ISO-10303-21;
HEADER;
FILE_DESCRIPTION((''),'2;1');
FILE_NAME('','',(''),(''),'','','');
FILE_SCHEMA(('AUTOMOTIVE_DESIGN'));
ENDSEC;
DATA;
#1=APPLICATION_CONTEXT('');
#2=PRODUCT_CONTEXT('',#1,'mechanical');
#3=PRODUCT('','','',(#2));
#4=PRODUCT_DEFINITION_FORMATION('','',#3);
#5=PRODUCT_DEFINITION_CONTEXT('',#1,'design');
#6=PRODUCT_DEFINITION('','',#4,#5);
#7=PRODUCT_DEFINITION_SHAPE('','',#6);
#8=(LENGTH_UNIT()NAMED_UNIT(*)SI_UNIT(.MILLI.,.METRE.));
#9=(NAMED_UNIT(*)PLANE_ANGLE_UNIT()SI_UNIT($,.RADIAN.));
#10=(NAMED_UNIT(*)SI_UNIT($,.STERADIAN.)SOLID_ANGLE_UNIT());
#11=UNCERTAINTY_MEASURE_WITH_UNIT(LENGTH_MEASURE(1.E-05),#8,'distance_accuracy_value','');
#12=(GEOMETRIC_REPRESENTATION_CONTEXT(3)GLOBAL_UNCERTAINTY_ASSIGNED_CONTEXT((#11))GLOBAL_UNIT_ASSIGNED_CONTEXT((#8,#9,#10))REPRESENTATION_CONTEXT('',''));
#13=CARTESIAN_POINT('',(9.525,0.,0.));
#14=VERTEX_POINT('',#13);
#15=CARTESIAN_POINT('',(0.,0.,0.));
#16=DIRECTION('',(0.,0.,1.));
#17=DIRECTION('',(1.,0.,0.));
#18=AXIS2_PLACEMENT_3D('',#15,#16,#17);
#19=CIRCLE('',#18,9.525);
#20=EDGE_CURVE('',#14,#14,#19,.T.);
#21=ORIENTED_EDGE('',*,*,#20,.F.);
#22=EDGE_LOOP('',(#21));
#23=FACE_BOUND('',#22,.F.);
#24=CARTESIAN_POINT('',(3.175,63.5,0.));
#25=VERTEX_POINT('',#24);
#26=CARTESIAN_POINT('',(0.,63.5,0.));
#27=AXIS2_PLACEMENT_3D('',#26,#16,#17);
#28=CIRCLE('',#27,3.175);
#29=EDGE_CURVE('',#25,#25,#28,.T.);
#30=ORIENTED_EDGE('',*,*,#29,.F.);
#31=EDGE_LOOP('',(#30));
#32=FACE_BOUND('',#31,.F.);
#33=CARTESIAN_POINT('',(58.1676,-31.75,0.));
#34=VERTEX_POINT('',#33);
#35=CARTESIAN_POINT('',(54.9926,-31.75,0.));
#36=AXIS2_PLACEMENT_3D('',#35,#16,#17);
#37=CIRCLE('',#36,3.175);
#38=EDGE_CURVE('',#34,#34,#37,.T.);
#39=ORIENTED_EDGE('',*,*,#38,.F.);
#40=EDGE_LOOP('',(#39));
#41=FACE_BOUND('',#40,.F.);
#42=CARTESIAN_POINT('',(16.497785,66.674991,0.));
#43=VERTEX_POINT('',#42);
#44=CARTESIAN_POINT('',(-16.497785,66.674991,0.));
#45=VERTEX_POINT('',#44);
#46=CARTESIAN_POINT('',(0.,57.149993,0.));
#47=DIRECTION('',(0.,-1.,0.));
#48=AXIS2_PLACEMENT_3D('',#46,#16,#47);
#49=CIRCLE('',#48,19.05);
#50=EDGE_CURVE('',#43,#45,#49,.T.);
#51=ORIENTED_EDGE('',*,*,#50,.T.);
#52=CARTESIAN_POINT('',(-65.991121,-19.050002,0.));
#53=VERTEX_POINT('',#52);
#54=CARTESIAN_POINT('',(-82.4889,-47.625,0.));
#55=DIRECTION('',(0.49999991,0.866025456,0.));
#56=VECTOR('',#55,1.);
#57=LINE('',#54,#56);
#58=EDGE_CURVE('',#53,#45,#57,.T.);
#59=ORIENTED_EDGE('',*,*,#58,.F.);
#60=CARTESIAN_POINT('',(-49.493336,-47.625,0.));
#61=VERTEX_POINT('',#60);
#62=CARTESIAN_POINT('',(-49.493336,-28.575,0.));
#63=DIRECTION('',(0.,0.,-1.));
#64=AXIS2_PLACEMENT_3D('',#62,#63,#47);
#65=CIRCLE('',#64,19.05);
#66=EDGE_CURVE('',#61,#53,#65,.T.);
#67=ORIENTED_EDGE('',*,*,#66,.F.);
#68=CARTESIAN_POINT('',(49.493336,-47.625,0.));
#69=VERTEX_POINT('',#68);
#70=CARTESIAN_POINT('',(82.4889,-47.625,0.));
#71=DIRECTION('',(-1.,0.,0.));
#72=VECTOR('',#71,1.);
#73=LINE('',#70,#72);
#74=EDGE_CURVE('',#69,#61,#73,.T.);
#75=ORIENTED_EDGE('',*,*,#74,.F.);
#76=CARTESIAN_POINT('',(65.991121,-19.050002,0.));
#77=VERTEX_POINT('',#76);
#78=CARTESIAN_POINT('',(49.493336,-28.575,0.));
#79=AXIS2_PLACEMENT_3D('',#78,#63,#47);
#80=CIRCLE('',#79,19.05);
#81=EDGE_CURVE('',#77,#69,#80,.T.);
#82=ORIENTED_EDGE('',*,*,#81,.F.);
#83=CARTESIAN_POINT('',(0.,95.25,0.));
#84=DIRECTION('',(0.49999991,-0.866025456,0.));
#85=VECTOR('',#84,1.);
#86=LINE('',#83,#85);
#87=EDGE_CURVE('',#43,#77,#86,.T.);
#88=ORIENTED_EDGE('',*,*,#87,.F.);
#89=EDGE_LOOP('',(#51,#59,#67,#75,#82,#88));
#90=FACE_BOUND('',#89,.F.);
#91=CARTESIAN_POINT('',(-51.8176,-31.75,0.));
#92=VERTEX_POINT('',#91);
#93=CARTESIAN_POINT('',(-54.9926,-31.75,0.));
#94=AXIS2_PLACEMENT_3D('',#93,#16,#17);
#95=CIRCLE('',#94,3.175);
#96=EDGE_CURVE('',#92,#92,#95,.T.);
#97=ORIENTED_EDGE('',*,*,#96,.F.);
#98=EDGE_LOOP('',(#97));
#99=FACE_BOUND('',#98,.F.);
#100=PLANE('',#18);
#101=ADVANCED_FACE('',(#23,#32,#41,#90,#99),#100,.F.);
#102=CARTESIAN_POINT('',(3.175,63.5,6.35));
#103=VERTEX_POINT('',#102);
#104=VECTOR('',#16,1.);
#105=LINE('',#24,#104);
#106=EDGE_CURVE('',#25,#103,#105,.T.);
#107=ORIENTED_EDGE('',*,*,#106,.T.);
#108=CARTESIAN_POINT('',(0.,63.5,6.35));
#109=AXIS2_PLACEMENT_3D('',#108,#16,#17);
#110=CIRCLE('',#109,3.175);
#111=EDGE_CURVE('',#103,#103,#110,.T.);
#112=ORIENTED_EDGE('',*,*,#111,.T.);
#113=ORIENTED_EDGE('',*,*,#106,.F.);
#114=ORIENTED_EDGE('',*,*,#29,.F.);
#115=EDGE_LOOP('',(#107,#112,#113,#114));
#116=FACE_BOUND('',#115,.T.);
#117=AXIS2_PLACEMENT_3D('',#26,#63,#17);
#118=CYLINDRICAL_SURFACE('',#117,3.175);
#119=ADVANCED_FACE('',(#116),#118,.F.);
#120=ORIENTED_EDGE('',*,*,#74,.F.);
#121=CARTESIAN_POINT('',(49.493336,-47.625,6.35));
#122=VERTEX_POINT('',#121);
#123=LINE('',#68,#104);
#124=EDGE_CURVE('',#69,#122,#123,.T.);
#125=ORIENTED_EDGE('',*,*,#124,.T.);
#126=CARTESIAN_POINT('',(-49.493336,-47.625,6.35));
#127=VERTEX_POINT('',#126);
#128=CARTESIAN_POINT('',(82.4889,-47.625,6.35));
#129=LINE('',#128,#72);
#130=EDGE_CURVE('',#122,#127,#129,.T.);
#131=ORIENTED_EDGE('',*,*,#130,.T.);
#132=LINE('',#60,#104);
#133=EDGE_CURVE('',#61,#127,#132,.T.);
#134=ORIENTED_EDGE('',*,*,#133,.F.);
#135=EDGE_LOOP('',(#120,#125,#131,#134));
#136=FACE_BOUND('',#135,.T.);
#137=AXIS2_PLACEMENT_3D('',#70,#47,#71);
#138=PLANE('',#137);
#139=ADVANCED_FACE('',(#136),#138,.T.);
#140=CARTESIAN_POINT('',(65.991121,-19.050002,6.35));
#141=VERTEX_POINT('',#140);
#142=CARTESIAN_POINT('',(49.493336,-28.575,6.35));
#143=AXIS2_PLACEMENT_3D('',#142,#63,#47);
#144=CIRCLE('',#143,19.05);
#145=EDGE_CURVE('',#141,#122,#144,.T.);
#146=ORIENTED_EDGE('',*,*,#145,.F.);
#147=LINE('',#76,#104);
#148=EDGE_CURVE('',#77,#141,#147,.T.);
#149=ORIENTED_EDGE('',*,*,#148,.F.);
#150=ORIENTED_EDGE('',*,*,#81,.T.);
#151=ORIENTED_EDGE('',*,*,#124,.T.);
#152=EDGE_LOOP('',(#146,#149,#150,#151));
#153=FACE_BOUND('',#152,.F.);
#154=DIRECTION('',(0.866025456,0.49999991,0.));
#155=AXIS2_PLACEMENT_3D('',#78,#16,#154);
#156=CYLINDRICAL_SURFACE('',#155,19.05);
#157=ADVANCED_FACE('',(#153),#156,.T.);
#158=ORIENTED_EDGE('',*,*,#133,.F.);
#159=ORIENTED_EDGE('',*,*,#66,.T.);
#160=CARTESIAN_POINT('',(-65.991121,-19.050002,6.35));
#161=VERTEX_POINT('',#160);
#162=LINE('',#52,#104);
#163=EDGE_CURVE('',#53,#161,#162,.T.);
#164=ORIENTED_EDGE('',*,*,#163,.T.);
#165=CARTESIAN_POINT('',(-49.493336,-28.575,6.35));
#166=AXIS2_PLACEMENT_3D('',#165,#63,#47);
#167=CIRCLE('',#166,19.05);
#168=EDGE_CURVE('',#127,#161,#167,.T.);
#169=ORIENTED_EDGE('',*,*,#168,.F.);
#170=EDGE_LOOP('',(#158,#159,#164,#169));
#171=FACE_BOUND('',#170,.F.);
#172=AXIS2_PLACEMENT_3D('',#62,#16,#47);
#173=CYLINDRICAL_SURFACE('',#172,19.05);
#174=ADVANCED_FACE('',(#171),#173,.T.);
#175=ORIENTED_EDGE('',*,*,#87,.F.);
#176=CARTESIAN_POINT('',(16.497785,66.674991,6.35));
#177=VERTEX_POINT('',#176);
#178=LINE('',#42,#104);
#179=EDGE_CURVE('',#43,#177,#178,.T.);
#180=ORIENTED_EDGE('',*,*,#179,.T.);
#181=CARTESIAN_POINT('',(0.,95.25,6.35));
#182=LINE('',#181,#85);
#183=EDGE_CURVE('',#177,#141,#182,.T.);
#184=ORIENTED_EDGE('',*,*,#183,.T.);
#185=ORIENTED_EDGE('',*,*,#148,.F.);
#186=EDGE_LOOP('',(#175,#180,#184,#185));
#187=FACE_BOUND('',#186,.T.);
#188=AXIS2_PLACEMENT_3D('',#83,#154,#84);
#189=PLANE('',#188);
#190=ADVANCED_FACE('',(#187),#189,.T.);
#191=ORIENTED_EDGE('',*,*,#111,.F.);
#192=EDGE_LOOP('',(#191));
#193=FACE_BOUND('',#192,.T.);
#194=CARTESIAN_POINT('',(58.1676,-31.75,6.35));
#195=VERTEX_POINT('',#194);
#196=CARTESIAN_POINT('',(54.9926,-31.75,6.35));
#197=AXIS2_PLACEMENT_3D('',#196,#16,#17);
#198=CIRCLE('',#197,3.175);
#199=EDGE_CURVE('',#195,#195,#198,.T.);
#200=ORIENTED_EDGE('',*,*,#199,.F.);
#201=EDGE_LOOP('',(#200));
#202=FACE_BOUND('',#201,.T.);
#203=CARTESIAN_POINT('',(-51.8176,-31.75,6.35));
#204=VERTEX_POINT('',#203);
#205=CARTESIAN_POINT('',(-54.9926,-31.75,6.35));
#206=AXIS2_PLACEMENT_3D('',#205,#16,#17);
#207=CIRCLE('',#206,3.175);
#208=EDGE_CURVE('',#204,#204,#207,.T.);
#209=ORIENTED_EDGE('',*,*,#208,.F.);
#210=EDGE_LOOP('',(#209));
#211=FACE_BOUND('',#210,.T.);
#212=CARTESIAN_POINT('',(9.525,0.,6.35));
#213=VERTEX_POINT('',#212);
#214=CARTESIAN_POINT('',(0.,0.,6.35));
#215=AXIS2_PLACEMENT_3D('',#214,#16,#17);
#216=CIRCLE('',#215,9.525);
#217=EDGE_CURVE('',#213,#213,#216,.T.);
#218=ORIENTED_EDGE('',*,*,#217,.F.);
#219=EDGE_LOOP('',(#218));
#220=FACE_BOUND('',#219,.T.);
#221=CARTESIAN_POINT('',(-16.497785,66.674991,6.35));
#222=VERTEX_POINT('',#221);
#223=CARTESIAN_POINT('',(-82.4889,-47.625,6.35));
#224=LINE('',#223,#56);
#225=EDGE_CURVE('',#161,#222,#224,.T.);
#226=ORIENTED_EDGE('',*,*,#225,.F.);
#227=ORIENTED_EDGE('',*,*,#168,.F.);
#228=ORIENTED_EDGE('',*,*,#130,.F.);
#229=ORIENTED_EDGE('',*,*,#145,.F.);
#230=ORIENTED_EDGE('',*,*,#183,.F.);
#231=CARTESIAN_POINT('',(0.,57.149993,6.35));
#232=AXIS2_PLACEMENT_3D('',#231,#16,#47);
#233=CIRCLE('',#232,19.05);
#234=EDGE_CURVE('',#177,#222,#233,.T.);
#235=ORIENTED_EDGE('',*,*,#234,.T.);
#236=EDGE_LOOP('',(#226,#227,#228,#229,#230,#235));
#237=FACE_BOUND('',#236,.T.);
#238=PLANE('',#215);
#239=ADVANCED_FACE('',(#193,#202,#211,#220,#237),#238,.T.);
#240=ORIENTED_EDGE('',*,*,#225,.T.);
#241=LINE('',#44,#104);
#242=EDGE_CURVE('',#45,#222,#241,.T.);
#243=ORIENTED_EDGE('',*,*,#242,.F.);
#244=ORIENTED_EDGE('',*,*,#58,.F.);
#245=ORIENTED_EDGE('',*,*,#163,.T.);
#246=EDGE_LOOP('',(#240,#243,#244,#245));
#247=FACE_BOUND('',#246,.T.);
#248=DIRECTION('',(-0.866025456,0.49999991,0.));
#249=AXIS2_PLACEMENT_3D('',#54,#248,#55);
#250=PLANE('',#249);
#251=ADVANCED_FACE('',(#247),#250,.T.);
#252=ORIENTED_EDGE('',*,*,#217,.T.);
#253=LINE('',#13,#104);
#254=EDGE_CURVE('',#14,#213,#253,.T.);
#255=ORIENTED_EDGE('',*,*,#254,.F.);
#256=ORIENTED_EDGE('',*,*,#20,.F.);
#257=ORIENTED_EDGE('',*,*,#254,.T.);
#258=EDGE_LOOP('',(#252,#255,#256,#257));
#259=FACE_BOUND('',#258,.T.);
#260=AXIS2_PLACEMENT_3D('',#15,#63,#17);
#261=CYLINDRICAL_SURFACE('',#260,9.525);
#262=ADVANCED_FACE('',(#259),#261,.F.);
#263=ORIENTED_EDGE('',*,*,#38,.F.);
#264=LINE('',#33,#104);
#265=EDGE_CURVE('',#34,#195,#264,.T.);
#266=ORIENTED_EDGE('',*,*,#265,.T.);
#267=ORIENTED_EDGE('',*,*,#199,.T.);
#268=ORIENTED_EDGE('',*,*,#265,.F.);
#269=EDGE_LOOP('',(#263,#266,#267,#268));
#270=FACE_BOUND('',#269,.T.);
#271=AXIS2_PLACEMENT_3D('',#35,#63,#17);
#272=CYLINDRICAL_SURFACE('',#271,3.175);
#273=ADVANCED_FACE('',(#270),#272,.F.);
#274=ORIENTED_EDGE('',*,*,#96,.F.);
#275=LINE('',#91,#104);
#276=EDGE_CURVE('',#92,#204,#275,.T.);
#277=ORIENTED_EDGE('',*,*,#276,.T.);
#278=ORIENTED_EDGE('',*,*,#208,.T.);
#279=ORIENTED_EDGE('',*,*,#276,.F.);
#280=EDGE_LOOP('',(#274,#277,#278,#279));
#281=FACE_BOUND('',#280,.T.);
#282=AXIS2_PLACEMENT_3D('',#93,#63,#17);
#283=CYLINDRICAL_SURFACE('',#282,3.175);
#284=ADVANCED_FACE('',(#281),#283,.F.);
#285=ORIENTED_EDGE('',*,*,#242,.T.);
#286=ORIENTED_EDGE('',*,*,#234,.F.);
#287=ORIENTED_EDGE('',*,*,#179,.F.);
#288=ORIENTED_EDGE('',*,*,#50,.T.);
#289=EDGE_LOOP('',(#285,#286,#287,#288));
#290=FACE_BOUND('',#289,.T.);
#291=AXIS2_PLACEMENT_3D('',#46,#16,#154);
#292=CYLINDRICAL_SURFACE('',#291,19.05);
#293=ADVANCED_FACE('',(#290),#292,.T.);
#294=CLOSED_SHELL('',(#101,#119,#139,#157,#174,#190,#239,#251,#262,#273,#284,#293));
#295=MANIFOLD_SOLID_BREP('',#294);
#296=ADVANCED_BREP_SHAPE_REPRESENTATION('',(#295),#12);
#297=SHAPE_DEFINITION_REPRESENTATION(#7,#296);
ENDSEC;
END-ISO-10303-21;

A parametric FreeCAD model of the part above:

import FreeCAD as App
import Part
import Sketcher
from FreeCAD import Vector
Q = App.Units.Quantity


def edges_at(feature, points):
    """Names of the edges that pass closest to the given points."""
    edges = feature.Shape.Edges
    near = lambda p: min(range(len(edges)), key=lambda i: edges[i].distToShape(Part.Vertex(*p))[0])
    return sorted({f"Edge{near(p) + 1}" for p in points})


def add_polygon(sketch, points):
    """Adds a closed chain of lines whose ends are joined by coincident constraints."""
    first, n = sketch.GeometryCount, len(points)
    for a, b in zip(points, points[1:] + points[:1]):
        sketch.addGeometry(Part.LineSegment(App.Vector(*a, 0), App.Vector(*b, 0)), False)
    for i in range(n):
        sketch.addConstraint(Sketcher.Constraint("Coincident", first + i, 2, first + (i + 1) % n, 1))

doc = App.newDocument("Part")
body = doc.addObject("PartDesign::Body", "Body")

sketch1 = doc.addObject("Sketcher::SketchObject", "Sketch")
body.addObject(sketch1)
sketch1.AttachmentSupport = (doc.XY_Plane, [""])
sketch1.MapMode = "FlatFace"
add_polygon(sketch1, [(82.4889, -47.625), (0, 95.25), (-82.4889, -47.625)])
sketch1.addGeometry(Part.Circle(Vector(-54.9926, -31.75, 0), Vector(0, 0, 1), 3.175), False)
sketch1.addGeometry(Part.Circle(Vector(54.9926, -31.75, 0), Vector(0, 0, 1), 3.175), False)
sketch1.addGeometry(Part.Circle(Vector(0, 0, 0), Vector(0, 0, 1), 9.525), False)
sketch1.addGeometry(Part.Circle(Vector(0, 63.5, 0), Vector(0, 0, 1), 3.175), False)
sketch1.addConstraint([
    Sketcher.Constraint("Horizontal", 2),
    Sketcher.Constraint("Coincident", 5, 3, -1, 1),
    Sketcher.Constraint("Equal", 3, 4),
    Sketcher.Constraint("Equal", 4, 6),
    Sketcher.Constraint("Symmetric", 3, 3, 4, 3, -2),
    Sketcher.Constraint("PointOnObject", 6, 3, -2),
    Sketcher.Constraint("PointOnObject", 0, 2, -2),
    Sketcher.Constraint("Equal", 0, 1),
    Sketcher.Constraint("Diameter", 3, Q("0.25 in")),
    Sketcher.Constraint("Diameter", 5, Q("0.75 in")),
    Sketcher.Constraint("DistanceY", -1, 1, 6, 3, Q("2.5 in")),
    Sketcher.Constraint("Angle", 0, Q("120 deg")),
    Sketcher.Constraint("DistanceY", 3, 3, 0, 2, Q("5 in")),
    Sketcher.Constraint("DistanceY", 3, 3, -1, 1, Q("1.25 in")),
    Sketcher.Constraint("DistanceX", 2, 1, 2, 2, Q("6.4952 in")),
    Sketcher.Constraint("DistanceX", 3, 3, -1, 1, Q("54.9926 mm")),
])
pad1 = doc.addObject("PartDesign::Pad", "Pad")
body.addObject(pad1)
pad1.Profile = sketch1
pad1.Length = Q("0.25 in")
doc.recompute()

fillet = doc.addObject("PartDesign::Fillet", "Fillet")
body.addObject(fillet)
fillet.Base = (pad1, edges_at(pad1, [(0, 95.25, 3.175), (-82.489, -47.625, 3.175), (82.489, -47.625, 3.175)]))
fillet.Radius = Q("0.75 in")

doc.recompute()
